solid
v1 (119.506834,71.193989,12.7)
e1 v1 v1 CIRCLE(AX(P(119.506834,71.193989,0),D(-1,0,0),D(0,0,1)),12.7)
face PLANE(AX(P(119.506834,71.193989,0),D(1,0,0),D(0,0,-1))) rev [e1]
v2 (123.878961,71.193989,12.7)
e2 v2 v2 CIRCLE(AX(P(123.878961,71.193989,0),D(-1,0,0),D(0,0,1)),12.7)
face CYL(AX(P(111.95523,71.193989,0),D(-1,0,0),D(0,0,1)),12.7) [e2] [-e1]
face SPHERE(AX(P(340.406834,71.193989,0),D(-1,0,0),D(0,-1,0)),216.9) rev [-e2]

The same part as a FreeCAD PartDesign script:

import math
import FreeCAD as App
import Part
import Sketcher

V = App.Vector

doc = App.newDocument("Part")
body = doc.addObject("PartDesign::Body", "Body")

# Sketch on XY plane
sketch1 = body.newObject("Sketcher::SketchObject", "Sketch")
sketch1.AttachmentSupport = (doc.getObject("XY_Plane"), [""])
sketch1.MapMode = "FlatFace"
sketch1.addGeometry([
    Part.LineSegment(V(119.506834, 83.893989, 0), V(119.506834, 71.193989, 0)),
    Part.LineSegment(V(119.506834, 71.193989, 0), V(123.506834, 71.193989, 0)),
    Part.ArcOfCircle(Part.Circle(V(340.406834, 71.193989, 0), V(0, 0, 1), 216.9), math.radians(176.643279), math.radians(180)),
    Part.LineSegment(V(123.878961, 83.893989, 0), V(119.506834, 83.893989, 0)),
], False)
sketch1.addGeometry(Part.LineSegment(V(119.506834, 71.193989, 0), V(340.406834, 71.193989, 0)), True)  # axis
sketch1.addConstraint([
    Sketcher.Constraint("Coincident", 0, 2, 1, 1),
    Sketcher.Constraint("Coincident", 1, 2, 2, 2),
    Sketcher.Constraint("Coincident", 2, 1, 3, 1),
    Sketcher.Constraint("Coincident", 3, 2, 0, 1),
    Sketcher.Constraint("Vertical", 0),
    Sketcher.Constraint("Horizontal", 1),
    Sketcher.Constraint("Horizontal", 3),
    Sketcher.Constraint("Horizontal", 4),
    Sketcher.Constraint("Coincident", 4, 1, 0, 2),
    Sketcher.Constraint("Coincident", 4, 2, 2, 3),
    Sketcher.Constraint("Radius", 2, 216.9),
    Sketcher.Constraint("DistanceX", 1, 1, 1, 2, 4.0),
    Sketcher.Constraint("DistanceY", 0, 2, 0, 1, 12.7),
    Sketcher.Constraint("DistanceY", -1, 1, 2, 3, 71.193989),
    Sketcher.Constraint("DistanceX", -1, 1, 2, 1, 123.878961),
])
revolution = body.newObject("PartDesign::Revolution", "Revolution")
revolution.Profile = sketch1
revolution.ReferenceAxis = (sketch1, ["Axis0"])
revolution.Angle = 360

doc.recompute()
